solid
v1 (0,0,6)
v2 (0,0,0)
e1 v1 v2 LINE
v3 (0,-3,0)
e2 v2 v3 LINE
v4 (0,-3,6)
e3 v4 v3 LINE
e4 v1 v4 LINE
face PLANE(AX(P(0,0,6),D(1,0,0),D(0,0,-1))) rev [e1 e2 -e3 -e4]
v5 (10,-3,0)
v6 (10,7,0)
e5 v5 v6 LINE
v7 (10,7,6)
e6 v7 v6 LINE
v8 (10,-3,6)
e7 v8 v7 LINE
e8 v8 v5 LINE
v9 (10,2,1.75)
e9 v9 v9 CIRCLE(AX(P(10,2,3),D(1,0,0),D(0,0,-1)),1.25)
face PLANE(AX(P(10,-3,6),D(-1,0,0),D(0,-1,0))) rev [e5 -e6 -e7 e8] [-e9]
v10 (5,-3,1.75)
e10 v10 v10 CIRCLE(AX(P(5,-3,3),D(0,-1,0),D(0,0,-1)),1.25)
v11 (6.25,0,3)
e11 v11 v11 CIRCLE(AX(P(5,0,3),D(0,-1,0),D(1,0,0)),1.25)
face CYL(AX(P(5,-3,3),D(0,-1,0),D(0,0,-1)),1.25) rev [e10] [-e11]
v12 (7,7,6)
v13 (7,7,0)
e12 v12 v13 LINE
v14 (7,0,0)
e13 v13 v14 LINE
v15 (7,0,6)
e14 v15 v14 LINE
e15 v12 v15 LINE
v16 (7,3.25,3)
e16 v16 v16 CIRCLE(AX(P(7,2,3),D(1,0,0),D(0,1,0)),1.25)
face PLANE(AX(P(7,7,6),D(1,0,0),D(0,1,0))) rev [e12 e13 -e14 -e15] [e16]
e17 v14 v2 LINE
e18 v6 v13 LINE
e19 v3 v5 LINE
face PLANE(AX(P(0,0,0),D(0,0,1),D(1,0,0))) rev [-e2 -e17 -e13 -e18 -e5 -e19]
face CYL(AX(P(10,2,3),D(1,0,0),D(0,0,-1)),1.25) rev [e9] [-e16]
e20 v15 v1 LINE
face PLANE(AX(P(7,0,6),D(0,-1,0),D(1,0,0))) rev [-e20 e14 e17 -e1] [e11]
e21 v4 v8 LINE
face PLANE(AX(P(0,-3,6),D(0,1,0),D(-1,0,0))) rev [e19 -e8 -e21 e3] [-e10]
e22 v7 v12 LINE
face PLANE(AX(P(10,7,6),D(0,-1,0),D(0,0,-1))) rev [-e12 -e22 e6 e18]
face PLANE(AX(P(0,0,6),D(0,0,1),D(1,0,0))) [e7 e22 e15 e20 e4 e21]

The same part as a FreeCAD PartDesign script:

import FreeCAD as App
import Part
import Sketcher
from FreeCAD import Vector


def add_polygon(sketch, points):
    """Adds a closed chain of lines whose ends are joined by coincident constraints."""
    first, n = sketch.GeometryCount, len(points)
    for a, b in zip(points, points[1:] + points[:1]):
        sketch.addGeometry(Part.LineSegment(App.Vector(*a, 0), App.Vector(*b, 0)), False)
    for i in range(n):
        sketch.addConstraint(Sketcher.Constraint("Coincident", first + i, 2, first + (i + 1) % n, 1))

doc = App.newDocument("Part")
params = doc.addObject("Spreadsheet::Sheet", "Params")
for row, (alias, value) in enumerate([
    ("sketch1_width", "10 mm"),
    ("sketch1_width2", "3 mm"),
    ("pad1_length", "6 mm"),
    ("sketch2_diameter", "2.5 mm"),
    ("hole_diameter", "2.5 mm"),
    ("sketch3_diameter", "2.5 mm"),
    ("hole2_diameter", "2.5 mm"),
], start=1):
    params.set(f"A{row}", alias)
    params.set(f"B{row}", "=" + value)
    params.setAlias(f"B{row}", alias)

body = doc.addObject("PartDesign::Body", "Body")

# Sketch on XY plane
sketch1 = body.newObject("Sketcher::SketchObject", "Sketch")
sketch1.AttachmentSupport = (doc.getObject("XY_Plane"), [""])
sketch1.MapMode = "FlatFace"
add_polygon(sketch1, [(0, 0), (0, -3), (10, -3), (10, 7), (7, 7), (7, 0)])  # lines 0-5
sketch1.addConstraint([
    Sketcher.Constraint("Vertical", 0),
    Sketcher.Constraint("Horizontal", 1),
    Sketcher.Constraint("Vertical", 2),
    Sketcher.Constraint("Horizontal", 3),
    Sketcher.Constraint("Vertical", 4),
    Sketcher.Constraint("Horizontal", 5),
    Sketcher.Constraint("Coincident", 5, 2, -1, 1),
    Sketcher.Constraint("Equal", 3, 0),
    Sketcher.Constraint("Equal", 1, 2),
    Sketcher.Constraint("DistanceX", 1, 1, 1, 2, 10.0),
    Sketcher.Constraint("DistanceX", 3, 2, 3, 1, 3.0),
])
sketch1.setExpression("Constraints[15]", "Params.sketch1_width")
sketch1.setExpression("Constraints[16]", "Params.sketch1_width2")
pad1 = body.newObject("PartDesign::Pad", "Pad")
pad1.Profile = sketch1
pad1.setExpression("Length", "Params.pad1_length")

# Sketch on XZ plane
sketch2 = body.newObject("Sketcher::SketchObject", "Sketch001")
sketch2.AttachmentSupport = (doc.getObject("XZ_Plane"), [""])
sketch2.MapMode = "FlatFace"
sketch2.AttachmentOffset = App.Placement(Vector(0, 0, 3), App.Rotation())
sketch2.addGeometry(Part.Circle(Vector(5, 3, 0), Vector(0, 0, 1), 1.2), False)
sketch2.addConstraint([
    Sketcher.Constraint("Diameter", 0, 2.5),
    Sketcher.Constraint("DistanceX", -1, 1, 0, 3, 5.0),
    Sketcher.Constraint("DistanceY", -1, 1, 0, 3, 3.0),
])
sketch2.setExpression("Constraints[0]", "Params.sketch2_diameter")
doc.recompute()
hole = body.newObject("PartDesign::Hole", "Hole")
hole.Profile = sketch2
hole.ThreadType = "None"
hole.setExpression("Diameter", "Params.hole_diameter")
hole.DepthType = "ThroughAll"

# Sketch on YZ plane
sketch3 = body.newObject("Sketcher::SketchObject", "Sketch002")
sketch3.AttachmentSupport = (doc.getObject("YZ_Plane"), [""])
sketch3.MapMode = "FlatFace"
sketch3.AttachmentOffset = App.Placement(Vector(0, 0, 10), App.Rotation())
sketch3.addGeometry(Part.Circle(Vector(2, 3, 0), Vector(0, 0, 1), 1.2), False)
sketch3.addConstraint([
    Sketcher.Constraint("Diameter", 0, 2.5),
    Sketcher.Constraint("DistanceX", -1, 1, 0, 3, 2.0),
    Sketcher.Constraint("DistanceY", -1, 1, 0, 3, 3.0),
])
sketch3.setExpression("Constraints[0]", "Params.sketch3_diameter")
doc.recompute()
hole2 = body.newObject("PartDesign::Hole", "Hole001")
hole2.Profile = sketch3
hole2.ThreadType = "None"
hole2.setExpression("Diameter", "Params.hole2_diameter")
hole2.DepthType = "ThroughAll"

doc.recompute()
